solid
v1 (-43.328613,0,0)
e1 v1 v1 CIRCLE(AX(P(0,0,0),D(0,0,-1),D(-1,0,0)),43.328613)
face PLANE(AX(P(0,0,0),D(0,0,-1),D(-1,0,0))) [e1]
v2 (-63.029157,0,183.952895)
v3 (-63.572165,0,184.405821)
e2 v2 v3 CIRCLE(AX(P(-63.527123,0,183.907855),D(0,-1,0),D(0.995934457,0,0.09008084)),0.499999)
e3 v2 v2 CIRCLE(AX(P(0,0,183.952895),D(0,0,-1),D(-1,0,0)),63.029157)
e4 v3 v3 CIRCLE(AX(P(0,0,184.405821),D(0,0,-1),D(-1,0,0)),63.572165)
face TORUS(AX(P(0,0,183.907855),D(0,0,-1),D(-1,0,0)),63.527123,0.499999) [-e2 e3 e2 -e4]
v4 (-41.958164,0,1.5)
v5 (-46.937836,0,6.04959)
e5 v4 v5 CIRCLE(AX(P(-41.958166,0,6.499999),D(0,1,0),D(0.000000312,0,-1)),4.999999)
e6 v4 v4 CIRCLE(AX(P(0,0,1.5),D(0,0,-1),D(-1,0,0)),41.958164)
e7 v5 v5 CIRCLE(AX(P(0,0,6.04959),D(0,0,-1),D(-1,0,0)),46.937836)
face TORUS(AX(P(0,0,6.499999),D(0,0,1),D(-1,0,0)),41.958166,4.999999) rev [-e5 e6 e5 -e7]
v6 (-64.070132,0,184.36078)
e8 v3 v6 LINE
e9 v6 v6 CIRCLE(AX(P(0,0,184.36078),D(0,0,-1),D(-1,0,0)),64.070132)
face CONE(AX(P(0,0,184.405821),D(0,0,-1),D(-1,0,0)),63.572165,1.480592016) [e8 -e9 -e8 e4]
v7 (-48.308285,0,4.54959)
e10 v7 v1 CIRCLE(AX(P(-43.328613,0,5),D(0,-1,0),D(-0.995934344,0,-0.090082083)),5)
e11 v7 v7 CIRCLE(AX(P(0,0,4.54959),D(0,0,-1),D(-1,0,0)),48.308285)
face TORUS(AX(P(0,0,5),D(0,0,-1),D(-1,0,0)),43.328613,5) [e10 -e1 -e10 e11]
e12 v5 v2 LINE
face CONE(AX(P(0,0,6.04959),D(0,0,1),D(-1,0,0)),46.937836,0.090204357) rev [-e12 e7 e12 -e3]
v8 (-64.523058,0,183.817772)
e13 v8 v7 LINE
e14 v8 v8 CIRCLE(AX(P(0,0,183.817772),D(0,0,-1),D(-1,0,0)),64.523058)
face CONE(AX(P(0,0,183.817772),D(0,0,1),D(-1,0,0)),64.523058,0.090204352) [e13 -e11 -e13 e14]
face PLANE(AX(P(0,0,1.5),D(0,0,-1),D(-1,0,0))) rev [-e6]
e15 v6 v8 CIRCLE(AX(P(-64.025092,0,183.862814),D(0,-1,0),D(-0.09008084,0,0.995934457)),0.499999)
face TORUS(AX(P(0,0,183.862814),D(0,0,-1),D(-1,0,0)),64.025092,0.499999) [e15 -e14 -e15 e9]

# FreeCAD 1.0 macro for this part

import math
import FreeCAD as App
import Part
import Sketcher

doc = App.newDocument("Part")
body = doc.addObject("PartDesign::Body", "Body")

# Sketch on XZ plane
sketch1 = doc.addObject("Sketcher::SketchObject", "Sketch")
body.addObject(sketch1)
sketch1.AttachmentSupport = (doc.XZ_Plane, [""])
sketch1.MapMode = "FlatFace"
sketch1.addGeometry(Part.LineSegment(App.Vector(-43.33, 0, 0), App.Vector(0, 0, 0)), False)
sketch1.addGeometry(Part.LineSegment(App.Vector(0, 0, 0), App.Vector(0, 1.5, 0)), False)
sketch1.addGeometry(Part.LineSegment(App.Vector(0, 1.5, 0), App.Vector(-41.96, 1.5, 0)), False)
sketch1.addGeometry(Part.ArcOfCircle(Part.Circle(App.Vector(-41.96, 6.5, 0), App.Vector(0, 0, 1), 5), math.radians(-175), math.radians(-90)), False)
sketch1.addGeometry(Part.LineSegment(App.Vector(-46.94, 6.05, 0), App.Vector(-63.03, 183.95, 0)), False)
sketch1.addGeometry(Part.ArcOfCircle(Part.Circle(App.Vector(-63.53, 183.91, 0), App.Vector(0, 0, 1), 0.5), math.radians(5), math.radians(95)), False)
sketch1.addGeometry(Part.LineSegment(App.Vector(-63.57, 184.41, 0), App.Vector(-64.07, 184.36, 0)), False)
sketch1.addGeometry(Part.ArcOfCircle(Part.Circle(App.Vector(-64.03, 183.86, 0), App.Vector(0, 0, 1), 0.5), math.radians(95), math.radians(185)), False)
sketch1.addGeometry(Part.LineSegment(App.Vector(-64.52, 183.82, 0), App.Vector(-48.31, 4.55, 0)), False)
sketch1.addGeometry(Part.ArcOfCircle(Part.Circle(App.Vector(-43.33, 5, 0), App.Vector(0, 0, 1), 5), math.radians(-175), math.radians(-90)), False)
sketch1.addConstraint(Sketcher.Constraint("Coincident", 0, 2, 1, 1))
sketch1.addConstraint(Sketcher.Constraint("Coincident", 1, 2, 2, 1))
sketch1.addConstraint(Sketcher.Constraint("Tangent", 2, 2, 3, 2))
sketch1.addConstraint(Sketcher.Constraint("Tangent", 3, 1, 4, 1))
sketch1.addConstraint(Sketcher.Constraint("Tangent", 4, 2, 5, 1))
sketch1.addConstraint(Sketcher.Constraint("Tangent", 5, 2, 6, 1))
sketch1.addConstraint(Sketcher.Constraint("Tangent", 6, 2, 7, 1))
sketch1.addConstraint(Sketcher.Constraint("Tangent", 7, 2, 8, 1))
sketch1.addConstraint(Sketcher.Constraint("Tangent", 8, 2, 9, 1))
sketch1.addConstraint(Sketcher.Constraint("Tangent", 9, 2, 0, 1))
sketch1.addConstraint(Sketcher.Constraint("Horizontal", 0))
sketch1.addConstraint(Sketcher.Constraint("Vertical", 1))
sketch1.addConstraint(Sketcher.Constraint("Horizontal", 2))
sketch1.addConstraint(Sketcher.Constraint("Coincident", 0, 2, -1, 1))
sketch1.addConstraint(Sketcher.Constraint("Equal", 5, 7))
sketch1.addConstraint(Sketcher.Constraint("Equal", 3, 9))
sketch1.addConstraint(Sketcher.Constraint("Perpendicular", 4, 6))
sketch1.addConstraint(Sketcher.Constraint("Perpendicular", 6, 8))
sketch1.addConstraint(Sketcher.Constraint("Radius", 3, 4.999999))
sketch1.addConstraint(Sketcher.Constraint("Radius", 5, 0.499999))
sketch1.addConstraint(Sketcher.Constraint("Distance", 8, 180.0))
sketch1.addConstraint(Sketcher.Constraint("DistanceY", 1, 1, 1, 2, 1.5))
sketch1.addConstraint(Sketcher.Constraint("Distance", 6, 0.5))
sketch1.addConstraint(Sketcher.Constraint("DistanceX", 5, 2, 3, 3, 21.613999))
sketch1.addConstraint(Sketcher.Constraint("DistanceX", 0, 1, 0, 2, 43.328613))
revolution = doc.addObject("PartDesign::Revolution", "Revolution")
body.addObject(revolution)
revolution.Profile = sketch1
revolution.ReferenceAxis = (sketch1, ["V_Axis"])
revolution.Angle = 360

doc.recompute()
